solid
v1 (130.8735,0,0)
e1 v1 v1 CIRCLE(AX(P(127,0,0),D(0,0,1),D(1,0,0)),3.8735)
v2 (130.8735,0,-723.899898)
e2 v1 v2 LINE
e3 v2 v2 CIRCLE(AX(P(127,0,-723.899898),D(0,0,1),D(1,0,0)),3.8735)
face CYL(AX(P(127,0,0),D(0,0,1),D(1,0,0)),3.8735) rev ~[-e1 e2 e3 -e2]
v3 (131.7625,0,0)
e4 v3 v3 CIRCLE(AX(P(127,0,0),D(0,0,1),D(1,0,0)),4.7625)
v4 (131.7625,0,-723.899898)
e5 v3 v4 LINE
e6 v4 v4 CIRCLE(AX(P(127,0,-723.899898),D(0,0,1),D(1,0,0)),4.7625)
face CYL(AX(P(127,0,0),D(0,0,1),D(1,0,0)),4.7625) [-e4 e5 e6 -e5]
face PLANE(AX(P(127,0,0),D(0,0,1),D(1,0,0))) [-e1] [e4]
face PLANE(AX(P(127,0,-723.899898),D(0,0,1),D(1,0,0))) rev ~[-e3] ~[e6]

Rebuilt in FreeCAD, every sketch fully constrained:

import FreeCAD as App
import Part
import Sketcher
Q = App.Units.Quantity

doc = App.newDocument("Part")
body = doc.addObject("PartDesign::Body", "Body")

# Sketch on XY plane
sketch1 = doc.addObject("Sketcher::SketchObject", "Sketch")
body.addObject(sketch1)
sketch1.AttachmentSupport = (doc.XY_Plane, [""])
sketch1.MapMode = "FlatFace"
sketch1.addGeometry([
    Part.Circle(App.Vector(127, 0, 0), App.Vector(0, 0, 1), 4.7625),
    Part.Circle(App.Vector(127, 0, 0), App.Vector(0, 0, 1), 3.8735),
], False)
sketch1.addConstraint([
    Sketcher.Constraint("Coincident", 1, 3, 0, 3),
    Sketcher.Constraint("PointOnObject", 0, 3, -1),
    Sketcher.Constraint("Diameter", 0, Q("0.375 in")),
    Sketcher.Constraint("Diameter", 1, Q("0.305 in")),
    Sketcher.Constraint("DistanceX", -1, 1, 0, 3, Q("5 in")),
])
pad1 = doc.addObject("PartDesign::Pad", "Pad")
body.addObject(pad1)
pad1.Profile = sketch1
pad1.Length = 723.899898
pad1.Reversed = True

doc.recompute()
